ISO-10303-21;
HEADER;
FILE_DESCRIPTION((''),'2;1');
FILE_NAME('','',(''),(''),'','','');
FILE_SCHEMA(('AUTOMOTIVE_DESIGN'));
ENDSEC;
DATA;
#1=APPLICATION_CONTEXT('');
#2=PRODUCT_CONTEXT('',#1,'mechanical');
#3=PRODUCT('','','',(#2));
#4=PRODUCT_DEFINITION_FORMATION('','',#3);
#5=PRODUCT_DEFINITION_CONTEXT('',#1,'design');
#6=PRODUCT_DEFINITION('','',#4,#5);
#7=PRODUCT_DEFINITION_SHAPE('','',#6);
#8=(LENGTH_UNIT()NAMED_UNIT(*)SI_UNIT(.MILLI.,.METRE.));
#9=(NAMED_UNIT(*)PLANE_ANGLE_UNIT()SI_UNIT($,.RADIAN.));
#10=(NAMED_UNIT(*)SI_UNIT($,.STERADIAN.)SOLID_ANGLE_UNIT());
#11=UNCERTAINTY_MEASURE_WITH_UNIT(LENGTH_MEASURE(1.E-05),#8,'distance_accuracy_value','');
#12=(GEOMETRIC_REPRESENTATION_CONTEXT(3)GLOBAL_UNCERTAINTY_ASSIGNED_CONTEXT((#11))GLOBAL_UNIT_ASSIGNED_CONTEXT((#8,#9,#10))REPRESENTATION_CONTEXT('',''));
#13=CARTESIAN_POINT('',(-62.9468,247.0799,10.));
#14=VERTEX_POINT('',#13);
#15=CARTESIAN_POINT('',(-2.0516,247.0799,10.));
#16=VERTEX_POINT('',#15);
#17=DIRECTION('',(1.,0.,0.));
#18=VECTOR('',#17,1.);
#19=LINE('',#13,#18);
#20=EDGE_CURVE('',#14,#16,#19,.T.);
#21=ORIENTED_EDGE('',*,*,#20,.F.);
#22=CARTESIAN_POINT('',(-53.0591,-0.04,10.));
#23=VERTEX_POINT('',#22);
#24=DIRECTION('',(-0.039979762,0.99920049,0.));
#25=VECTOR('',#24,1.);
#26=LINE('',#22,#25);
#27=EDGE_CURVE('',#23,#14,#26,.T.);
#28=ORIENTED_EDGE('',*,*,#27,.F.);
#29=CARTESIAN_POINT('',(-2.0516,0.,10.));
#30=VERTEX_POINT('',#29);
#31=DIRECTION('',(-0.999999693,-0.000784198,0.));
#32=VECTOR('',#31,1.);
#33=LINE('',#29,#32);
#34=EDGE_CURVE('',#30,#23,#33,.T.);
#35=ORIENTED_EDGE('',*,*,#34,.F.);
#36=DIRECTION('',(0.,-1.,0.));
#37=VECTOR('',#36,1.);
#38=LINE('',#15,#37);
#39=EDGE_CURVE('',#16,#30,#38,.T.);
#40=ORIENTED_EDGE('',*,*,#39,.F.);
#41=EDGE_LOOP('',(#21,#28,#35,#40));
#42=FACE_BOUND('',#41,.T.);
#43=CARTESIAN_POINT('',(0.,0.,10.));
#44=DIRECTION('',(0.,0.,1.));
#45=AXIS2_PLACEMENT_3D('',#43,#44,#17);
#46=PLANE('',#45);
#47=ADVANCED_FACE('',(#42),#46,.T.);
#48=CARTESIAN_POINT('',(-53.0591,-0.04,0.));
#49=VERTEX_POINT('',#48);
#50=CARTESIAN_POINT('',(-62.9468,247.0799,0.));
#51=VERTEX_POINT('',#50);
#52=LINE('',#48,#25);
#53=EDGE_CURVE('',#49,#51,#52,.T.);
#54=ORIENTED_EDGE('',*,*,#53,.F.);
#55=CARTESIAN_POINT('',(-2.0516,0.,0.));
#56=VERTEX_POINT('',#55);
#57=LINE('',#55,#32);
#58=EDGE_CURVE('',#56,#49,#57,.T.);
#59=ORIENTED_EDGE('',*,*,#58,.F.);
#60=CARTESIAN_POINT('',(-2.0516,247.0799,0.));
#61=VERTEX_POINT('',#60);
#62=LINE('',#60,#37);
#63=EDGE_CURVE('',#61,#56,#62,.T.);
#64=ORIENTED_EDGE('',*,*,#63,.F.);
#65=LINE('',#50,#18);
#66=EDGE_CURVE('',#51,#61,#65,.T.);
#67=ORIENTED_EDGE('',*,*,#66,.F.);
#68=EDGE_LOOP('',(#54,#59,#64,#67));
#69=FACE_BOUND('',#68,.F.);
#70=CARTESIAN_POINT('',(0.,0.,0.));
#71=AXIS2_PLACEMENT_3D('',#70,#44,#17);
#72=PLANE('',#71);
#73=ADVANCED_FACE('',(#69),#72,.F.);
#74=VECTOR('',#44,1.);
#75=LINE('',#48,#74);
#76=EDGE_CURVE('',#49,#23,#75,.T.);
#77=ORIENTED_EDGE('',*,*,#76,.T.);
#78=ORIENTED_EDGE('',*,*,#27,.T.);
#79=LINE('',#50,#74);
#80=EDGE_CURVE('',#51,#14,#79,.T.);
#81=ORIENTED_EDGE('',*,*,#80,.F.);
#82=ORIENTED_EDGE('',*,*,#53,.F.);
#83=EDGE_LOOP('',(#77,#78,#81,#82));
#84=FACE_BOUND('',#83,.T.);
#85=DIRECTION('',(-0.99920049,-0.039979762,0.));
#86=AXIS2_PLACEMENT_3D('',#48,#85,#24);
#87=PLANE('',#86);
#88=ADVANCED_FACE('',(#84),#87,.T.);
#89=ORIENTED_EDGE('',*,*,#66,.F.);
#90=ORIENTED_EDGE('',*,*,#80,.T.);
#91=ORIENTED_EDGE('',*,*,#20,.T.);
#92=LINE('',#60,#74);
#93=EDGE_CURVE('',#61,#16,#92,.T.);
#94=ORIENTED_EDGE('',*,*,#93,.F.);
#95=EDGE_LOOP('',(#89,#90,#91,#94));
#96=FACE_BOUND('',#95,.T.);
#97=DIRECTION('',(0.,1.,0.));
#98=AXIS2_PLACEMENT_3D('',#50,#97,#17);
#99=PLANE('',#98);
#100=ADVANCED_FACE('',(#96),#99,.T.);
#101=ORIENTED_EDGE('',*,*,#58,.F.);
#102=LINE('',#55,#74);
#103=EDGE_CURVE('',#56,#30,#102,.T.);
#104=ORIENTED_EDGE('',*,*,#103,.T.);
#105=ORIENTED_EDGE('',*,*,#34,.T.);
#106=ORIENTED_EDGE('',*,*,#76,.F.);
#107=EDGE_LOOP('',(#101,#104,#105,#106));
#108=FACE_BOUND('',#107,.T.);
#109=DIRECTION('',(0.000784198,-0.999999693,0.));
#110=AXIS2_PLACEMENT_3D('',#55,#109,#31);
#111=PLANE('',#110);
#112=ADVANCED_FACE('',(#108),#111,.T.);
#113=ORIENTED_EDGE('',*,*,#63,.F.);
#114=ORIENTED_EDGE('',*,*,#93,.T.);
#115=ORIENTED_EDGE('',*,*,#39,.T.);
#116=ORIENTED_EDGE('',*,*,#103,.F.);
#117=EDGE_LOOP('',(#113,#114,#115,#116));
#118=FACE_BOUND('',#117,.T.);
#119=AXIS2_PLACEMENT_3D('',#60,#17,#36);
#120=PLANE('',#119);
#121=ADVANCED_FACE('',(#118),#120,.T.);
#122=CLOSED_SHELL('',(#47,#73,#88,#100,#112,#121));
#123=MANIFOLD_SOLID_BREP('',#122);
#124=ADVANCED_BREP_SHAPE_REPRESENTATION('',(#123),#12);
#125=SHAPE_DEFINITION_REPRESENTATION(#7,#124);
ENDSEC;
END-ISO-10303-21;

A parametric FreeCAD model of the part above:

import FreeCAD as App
import Part
import Sketcher
Q = App.Units.Quantity

doc = App.newDocument("Part")
body = doc.addObject("PartDesign::Body", "Body")

# Sketch on XY plane
sketch1 = doc.addObject("Sketcher::SketchObject", "Sketch")
body.addObject(sketch1)
sketch1.AttachmentSupport = (doc.XY_Plane, [""])
sketch1.MapMode = "FlatFace"
sketch1.addGeometry(Part.LineSegment(App.Vector(-53.0591, -0.04, 0), App.Vector(-2.0516, 0, 0)), False)
sketch1.addGeometry(Part.LineSegment(App.Vector(-2.0516, 0, 0), App.Vector(-2.0516, 247.0799, 0)), False)
sketch1.addGeometry(Part.LineSegment(App.Vector(-2.0516, 247.0799, 0), App.Vector(-62.9468, 247.0799, 0)), False)
sketch1.addGeometry(Part.LineSegment(App.Vector(-62.9468, 247.0799, 0), App.Vector(-53.0591, -0.04, 0)), False)
sketch1.addConstraint(Sketcher.Constraint("Coincident", 0, 2, 1, 1))
sketch1.addConstraint(Sketcher.Constraint("Coincident", 1, 2, 2, 1))
sketch1.addConstraint(Sketcher.Constraint("Coincident", 2, 2, 3, 1))
sketch1.addConstraint(Sketcher.Constraint("Coincident", 3, 2, 0, 1))
sketch1.addConstraint(Sketcher.Constraint("Vertical", 1))
sketch1.addConstraint(Sketcher.Constraint("Horizontal", 2))
sketch1.addConstraint(Sketcher.Constraint("PointOnObject", 0, 2, -1))
sketch1.addConstraint(Sketcher.Constraint("DistanceY", 1, 1, 1, 2, Q("247.08 mm")))
sketch1.addConstraint(Sketcher.Constraint("DistanceY", 3, 2, -1, 1, Q("0.04 mm")))
sketch1.addConstraint(Sketcher.Constraint("DistanceX", 2, 2, 2, 1, Q("60.8952 mm")))
sketch1.addConstraint(Sketcher.Constraint("DistanceX", 3, 2, -1, 1, Q("53.059 mm")))
sketch1.addConstraint(Sketcher.Constraint("Distance", 0, Q("51.0075 mm")))
pad1 = doc.addObject("PartDesign::Pad", "Pad")
body.addObject(pad1)
pad1.Profile = sketch1
pad1.Length = 10

doc.recompute()
